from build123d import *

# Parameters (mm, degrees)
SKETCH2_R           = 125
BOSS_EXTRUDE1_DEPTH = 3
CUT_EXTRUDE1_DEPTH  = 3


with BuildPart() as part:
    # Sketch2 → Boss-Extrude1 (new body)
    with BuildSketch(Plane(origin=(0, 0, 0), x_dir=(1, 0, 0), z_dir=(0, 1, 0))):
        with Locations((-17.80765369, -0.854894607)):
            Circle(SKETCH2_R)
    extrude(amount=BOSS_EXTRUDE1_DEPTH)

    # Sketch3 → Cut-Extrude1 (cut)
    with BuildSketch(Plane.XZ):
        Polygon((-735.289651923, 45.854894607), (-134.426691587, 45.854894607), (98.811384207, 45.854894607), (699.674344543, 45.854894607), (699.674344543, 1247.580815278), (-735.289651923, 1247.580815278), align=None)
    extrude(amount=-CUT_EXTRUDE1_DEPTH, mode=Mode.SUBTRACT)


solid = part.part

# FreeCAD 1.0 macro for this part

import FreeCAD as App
import Part
import Sketcher
from FreeCAD import Vector


def add_polygon(sketch, points):
    """Adds a closed chain of lines whose ends are joined by coincident constraints."""
    first, n = sketch.GeometryCount, len(points)
    for a, b in zip(points, points[1:] + points[:1]):
        sketch.addGeometry(Part.LineSegment(App.Vector(*a, 0), App.Vector(*b, 0)), False)
    for i in range(n):
        sketch.addConstraint(Sketcher.Constraint("Coincident", first + i, 2, first + (i + 1) % n, 1))

doc = App.newDocument("Part")
params = doc.addObject("Spreadsheet::Sheet", "Params")
for row, (alias, value) in enumerate([
    ("sketch1_diameter", "250 mm"),
    ("pad1_length", "3 mm"),
    ("pocket1_length", "3 mm"),
], start=1):
    params.set(f"A{row}", alias)
    params.set(f"B{row}", "=" + value)
    params.setAlias(f"B{row}", alias)

body = doc.addObject("PartDesign::Body", "Body")

sketch1 = body.newObject("Sketcher::SketchObject", "Sketch")
sketch1.AttachmentSupport = (doc.getObject("XZ_Plane"), [""])
sketch1.MapMode = "FlatFace"
sketch1.addGeometry(Part.Circle(Vector(-17.807654, 0.854895, 0), Vector(0, 0, 1), 125), False)
sketch1.addConstraint(Sketcher.Constraint("Diameter", 0, 250.0))
sketch1.addConstraint(Sketcher.Constraint("DistanceX", 0, 3, -1, 1, 17.807654))
sketch1.addConstraint(Sketcher.Constraint("DistanceY", -1, 1, 0, 3, 0.854895))
sketch1.setExpression("Constraints[0]", "Params.sketch1_diameter")
pad1 = body.newObject("PartDesign::Pad", "Pad")
pad1.Profile = sketch1
pad1.setExpression("Length", "Params.pad1_length")
pad1.Reversed = True

sketch2 = body.newObject("Sketcher::SketchObject", "Sketch001")
sketch2.AttachmentSupport = (doc.getObject("XZ_Plane"), [""])
sketch2.MapMode = "FlatFace"
add_polygon(sketch2, [(-735.289652, 45.854895), (699.674345, 45.854895), (699.674345, 1247.580815), (-735.289652, 1247.580815)])
sketch2.addConstraint(Sketcher.Constraint("Horizontal", 0))
sketch2.addConstraint(Sketcher.Constraint("Vertical", 1))
sketch2.addConstraint(Sketcher.Constraint("Horizontal", 2))
sketch2.addConstraint(Sketcher.Constraint("Vertical", 3))
sketch2.addConstraint(Sketcher.Constraint("DistanceY", 1, 1, 1, 2, 1201.725921))
sketch2.addConstraint(Sketcher.Constraint("DistanceX", 0, 1, 0, 2, 1434.963996))
sketch2.addConstraint(Sketcher.Constraint("DistanceX", 2, 2, -1, 1, 735.289652))
sketch2.addConstraint(Sketcher.Constraint("DistanceY", -1, 1, 0, 2, 45.854895))
pocket1 = body.newObject("PartDesign::Pocket", "Pocket")
pocket1.Profile = sketch2
pocket1.setExpression("Length", "Params.pocket1_length")

doc.recompute()
